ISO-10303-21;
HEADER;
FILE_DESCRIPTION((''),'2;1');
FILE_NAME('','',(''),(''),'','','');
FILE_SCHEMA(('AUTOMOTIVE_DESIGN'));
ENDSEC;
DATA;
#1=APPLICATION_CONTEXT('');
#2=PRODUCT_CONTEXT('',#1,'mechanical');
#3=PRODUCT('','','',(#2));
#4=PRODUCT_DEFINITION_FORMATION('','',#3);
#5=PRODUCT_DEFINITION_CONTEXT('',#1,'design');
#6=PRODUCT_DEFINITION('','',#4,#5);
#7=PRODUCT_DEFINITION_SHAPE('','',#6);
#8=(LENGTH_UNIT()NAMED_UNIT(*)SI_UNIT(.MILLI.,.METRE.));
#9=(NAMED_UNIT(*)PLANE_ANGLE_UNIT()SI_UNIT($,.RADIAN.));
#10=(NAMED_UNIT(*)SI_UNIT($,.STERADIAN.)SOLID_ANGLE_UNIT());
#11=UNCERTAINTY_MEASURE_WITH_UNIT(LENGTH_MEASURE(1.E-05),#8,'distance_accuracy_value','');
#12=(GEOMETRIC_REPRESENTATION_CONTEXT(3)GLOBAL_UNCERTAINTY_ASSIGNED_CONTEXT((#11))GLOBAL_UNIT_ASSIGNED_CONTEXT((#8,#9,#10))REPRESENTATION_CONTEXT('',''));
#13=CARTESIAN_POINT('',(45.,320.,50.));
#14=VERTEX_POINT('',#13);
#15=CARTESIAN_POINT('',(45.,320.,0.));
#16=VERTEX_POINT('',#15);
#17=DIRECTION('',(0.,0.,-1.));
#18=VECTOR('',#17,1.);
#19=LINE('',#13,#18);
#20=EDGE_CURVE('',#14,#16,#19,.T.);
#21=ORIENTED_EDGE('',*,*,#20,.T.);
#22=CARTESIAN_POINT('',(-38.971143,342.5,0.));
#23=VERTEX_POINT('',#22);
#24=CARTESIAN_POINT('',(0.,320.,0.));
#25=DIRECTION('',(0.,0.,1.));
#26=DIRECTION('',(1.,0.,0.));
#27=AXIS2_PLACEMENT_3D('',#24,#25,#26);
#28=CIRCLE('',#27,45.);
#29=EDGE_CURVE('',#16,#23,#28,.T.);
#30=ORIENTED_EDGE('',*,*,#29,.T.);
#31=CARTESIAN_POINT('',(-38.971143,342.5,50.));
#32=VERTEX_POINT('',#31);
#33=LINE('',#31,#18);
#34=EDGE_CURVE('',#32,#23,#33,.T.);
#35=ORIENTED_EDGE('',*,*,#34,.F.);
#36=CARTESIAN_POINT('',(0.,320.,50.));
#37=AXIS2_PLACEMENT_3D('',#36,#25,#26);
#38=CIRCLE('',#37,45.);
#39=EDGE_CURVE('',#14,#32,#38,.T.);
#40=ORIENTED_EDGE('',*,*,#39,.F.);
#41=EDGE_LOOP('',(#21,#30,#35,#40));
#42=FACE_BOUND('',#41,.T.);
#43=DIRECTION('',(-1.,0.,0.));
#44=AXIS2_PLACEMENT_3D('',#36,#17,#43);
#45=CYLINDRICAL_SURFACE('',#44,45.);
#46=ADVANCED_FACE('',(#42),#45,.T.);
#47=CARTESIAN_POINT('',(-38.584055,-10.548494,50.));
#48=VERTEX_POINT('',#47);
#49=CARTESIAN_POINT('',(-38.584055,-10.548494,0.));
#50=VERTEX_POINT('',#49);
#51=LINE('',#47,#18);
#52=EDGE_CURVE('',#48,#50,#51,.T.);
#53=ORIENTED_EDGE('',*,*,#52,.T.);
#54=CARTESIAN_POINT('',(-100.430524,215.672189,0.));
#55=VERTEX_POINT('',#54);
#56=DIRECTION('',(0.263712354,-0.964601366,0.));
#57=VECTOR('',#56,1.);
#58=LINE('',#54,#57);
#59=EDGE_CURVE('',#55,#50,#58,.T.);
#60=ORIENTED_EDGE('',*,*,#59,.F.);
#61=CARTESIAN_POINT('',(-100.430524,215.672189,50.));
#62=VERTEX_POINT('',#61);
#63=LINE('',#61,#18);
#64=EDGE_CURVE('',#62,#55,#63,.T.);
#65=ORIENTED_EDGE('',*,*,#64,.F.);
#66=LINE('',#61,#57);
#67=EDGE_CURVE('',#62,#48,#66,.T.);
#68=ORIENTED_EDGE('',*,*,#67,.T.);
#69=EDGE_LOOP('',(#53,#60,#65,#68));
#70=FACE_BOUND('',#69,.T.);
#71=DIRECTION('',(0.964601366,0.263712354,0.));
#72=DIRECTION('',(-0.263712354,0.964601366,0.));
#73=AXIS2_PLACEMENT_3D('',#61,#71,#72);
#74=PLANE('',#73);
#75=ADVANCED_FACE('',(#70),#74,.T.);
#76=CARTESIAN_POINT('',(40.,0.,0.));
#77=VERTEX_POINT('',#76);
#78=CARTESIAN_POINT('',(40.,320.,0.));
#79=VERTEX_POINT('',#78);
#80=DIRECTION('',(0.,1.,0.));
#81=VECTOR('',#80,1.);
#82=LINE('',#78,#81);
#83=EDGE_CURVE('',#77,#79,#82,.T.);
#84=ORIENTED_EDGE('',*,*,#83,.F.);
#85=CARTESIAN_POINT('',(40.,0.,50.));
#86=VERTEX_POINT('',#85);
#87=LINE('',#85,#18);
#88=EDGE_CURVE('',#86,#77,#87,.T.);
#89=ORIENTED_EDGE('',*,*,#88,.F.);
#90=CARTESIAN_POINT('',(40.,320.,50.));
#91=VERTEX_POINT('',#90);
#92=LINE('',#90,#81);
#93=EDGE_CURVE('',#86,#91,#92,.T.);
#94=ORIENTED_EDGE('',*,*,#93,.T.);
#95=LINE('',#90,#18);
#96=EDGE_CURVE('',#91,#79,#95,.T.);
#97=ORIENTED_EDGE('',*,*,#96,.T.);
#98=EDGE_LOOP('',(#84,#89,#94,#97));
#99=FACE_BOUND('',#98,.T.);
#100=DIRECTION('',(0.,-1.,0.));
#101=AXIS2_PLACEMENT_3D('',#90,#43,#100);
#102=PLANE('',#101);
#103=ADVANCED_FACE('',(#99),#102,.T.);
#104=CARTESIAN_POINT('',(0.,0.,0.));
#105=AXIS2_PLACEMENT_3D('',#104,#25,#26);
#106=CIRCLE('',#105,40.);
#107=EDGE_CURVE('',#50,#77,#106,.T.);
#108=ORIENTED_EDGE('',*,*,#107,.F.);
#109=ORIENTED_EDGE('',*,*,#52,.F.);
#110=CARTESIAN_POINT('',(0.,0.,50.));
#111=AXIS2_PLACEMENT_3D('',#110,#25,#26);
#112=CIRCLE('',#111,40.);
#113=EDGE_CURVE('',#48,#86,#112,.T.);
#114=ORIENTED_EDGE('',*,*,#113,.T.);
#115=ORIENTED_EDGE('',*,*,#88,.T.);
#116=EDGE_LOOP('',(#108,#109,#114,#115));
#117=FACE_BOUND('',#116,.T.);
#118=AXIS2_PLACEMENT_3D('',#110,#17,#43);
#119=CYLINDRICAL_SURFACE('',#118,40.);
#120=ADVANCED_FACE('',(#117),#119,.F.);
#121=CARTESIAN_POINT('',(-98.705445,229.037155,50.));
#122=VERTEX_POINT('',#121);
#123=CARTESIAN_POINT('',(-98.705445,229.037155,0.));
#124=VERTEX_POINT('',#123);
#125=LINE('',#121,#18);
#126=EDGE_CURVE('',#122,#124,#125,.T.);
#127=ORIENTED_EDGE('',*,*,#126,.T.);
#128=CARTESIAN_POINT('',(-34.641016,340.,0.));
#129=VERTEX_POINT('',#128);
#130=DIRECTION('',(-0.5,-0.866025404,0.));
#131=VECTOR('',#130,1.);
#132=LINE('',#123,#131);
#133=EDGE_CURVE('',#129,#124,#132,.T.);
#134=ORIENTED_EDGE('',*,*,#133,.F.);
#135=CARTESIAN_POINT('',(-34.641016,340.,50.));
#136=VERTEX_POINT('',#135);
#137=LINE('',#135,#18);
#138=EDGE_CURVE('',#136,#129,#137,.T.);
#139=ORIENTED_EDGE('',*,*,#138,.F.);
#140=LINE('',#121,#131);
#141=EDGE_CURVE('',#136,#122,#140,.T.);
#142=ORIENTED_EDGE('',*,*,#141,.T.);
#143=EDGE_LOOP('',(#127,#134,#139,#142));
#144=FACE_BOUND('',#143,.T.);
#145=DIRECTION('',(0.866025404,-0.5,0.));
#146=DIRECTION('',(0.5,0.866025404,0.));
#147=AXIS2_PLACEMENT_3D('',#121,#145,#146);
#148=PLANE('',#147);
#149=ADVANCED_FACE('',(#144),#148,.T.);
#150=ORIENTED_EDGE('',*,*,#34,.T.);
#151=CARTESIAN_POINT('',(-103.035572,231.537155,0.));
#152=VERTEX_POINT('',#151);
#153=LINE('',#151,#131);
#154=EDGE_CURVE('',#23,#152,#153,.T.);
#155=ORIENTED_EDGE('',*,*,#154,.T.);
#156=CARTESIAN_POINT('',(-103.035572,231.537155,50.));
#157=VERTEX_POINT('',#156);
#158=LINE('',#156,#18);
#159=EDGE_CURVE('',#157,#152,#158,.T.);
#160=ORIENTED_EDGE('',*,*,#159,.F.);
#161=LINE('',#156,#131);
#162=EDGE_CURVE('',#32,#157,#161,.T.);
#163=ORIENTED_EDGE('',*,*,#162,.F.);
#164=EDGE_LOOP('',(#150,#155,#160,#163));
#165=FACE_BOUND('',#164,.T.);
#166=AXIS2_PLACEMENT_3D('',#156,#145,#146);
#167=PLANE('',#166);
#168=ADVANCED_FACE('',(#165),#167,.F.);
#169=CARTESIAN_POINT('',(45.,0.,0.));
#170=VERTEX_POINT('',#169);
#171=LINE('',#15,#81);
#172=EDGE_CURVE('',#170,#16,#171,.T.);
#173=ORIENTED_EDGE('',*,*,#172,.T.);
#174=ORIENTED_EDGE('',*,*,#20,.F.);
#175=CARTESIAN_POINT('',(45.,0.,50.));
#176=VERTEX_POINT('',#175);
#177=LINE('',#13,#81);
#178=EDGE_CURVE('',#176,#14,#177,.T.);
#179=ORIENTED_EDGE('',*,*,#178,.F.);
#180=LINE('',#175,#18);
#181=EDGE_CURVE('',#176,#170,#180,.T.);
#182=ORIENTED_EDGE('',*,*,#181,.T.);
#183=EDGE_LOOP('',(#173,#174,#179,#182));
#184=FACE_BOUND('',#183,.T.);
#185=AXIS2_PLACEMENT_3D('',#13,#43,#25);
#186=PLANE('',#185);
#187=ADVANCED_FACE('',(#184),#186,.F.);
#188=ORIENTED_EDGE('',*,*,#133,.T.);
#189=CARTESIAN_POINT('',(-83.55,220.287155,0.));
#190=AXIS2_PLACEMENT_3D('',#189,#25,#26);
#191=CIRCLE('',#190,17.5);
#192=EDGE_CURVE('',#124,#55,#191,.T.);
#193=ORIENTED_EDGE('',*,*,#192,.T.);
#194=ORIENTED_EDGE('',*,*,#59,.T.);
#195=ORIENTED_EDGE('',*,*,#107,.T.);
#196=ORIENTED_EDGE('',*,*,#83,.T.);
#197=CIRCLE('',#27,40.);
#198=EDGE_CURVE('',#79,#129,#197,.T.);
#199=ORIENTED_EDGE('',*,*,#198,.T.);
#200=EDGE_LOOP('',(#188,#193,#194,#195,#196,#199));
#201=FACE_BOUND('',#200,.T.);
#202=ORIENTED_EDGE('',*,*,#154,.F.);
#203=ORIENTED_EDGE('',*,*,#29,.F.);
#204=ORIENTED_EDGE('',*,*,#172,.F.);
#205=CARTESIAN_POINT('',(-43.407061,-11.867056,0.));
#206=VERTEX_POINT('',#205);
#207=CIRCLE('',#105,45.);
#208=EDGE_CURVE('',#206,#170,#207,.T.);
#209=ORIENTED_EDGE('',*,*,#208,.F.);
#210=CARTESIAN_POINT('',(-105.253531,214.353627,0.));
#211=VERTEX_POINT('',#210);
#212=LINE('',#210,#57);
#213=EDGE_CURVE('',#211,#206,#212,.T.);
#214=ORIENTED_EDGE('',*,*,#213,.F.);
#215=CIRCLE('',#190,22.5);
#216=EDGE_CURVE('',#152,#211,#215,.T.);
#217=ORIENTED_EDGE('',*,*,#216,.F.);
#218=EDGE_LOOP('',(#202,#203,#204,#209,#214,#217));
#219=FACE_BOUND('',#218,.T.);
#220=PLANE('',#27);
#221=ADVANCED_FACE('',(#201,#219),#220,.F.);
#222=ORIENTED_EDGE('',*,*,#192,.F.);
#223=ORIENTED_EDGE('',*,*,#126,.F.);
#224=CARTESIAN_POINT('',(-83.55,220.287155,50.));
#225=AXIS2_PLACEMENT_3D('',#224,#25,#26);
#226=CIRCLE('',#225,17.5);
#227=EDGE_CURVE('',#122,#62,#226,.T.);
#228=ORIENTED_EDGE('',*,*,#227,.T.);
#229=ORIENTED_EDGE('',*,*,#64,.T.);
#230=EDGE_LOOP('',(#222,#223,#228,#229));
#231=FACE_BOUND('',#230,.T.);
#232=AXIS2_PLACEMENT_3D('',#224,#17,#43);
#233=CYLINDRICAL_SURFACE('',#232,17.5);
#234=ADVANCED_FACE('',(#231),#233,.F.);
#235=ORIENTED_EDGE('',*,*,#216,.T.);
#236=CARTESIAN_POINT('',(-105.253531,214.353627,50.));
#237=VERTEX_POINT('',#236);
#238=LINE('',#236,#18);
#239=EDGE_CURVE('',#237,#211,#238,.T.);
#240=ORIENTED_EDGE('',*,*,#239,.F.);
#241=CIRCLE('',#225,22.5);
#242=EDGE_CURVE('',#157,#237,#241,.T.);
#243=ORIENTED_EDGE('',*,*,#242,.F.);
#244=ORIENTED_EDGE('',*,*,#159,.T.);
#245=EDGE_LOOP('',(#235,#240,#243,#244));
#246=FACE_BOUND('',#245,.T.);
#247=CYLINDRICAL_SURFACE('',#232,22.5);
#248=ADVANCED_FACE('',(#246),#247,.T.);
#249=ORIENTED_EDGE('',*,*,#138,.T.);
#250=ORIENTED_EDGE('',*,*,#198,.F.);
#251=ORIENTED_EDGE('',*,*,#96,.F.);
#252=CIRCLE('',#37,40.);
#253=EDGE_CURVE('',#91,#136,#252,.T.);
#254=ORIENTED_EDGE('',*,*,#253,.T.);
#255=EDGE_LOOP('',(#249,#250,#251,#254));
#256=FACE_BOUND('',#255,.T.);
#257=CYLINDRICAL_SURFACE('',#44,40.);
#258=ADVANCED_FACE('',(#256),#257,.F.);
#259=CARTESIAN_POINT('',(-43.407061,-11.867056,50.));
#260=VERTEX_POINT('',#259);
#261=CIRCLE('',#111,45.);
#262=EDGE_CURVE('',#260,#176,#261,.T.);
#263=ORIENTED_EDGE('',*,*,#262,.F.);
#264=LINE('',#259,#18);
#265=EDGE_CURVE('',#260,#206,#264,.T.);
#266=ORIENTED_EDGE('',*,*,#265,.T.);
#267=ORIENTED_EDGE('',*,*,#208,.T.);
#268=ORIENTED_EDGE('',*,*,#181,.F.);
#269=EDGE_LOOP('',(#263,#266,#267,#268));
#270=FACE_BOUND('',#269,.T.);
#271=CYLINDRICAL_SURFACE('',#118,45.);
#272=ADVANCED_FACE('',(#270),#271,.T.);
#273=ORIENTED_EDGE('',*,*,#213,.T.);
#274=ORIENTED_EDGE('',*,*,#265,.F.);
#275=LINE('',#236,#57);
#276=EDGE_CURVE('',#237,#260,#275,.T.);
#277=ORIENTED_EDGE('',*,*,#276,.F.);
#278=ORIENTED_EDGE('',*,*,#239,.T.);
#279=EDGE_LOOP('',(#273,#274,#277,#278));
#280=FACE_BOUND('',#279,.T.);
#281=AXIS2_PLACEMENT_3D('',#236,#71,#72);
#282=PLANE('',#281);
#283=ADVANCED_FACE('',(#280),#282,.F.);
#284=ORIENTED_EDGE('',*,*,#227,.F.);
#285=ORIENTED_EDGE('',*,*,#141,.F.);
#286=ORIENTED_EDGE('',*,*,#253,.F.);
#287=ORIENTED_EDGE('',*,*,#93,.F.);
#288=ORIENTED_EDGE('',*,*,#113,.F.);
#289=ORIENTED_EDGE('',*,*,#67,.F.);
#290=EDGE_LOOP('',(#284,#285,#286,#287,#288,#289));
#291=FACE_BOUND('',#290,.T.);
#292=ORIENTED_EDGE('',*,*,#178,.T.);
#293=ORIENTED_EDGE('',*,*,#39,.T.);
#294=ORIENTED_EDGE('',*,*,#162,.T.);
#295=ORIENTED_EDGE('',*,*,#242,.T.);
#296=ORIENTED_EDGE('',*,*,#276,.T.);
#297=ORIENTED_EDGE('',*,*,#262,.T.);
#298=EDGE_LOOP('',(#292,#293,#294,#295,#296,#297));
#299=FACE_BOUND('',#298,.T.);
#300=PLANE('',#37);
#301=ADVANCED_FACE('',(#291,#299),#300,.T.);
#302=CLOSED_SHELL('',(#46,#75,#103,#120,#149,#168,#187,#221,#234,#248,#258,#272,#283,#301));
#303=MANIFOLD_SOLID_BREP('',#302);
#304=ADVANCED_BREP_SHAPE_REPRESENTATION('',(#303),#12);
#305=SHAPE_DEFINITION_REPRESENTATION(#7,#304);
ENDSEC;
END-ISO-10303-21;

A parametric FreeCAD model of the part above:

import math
import FreeCAD as App
import Part
import Sketcher

V = App.Vector
Q = App.Units.Quantity

doc = App.newDocument("Part")
body = doc.addObject("PartDesign::Body", "Body")

sketch1 = body.newObject("Sketcher::SketchObject", "Sketch")
sketch1.AttachmentSupport = (doc.getObject("XY_Plane"), [""])
sketch1.MapMode = "FlatFace"
sketch1.addGeometry(Part.LineSegment(V(-39, 342, 0), V(-103, 232, 0)), False)
sketch1.addGeometry(Part.ArcOfCircle(Part.Circle(V(-84, 220, 0), V(0, 0, 1), 23), math.radians(150), math.radians(195)), False)
sketch1.addGeometry(Part.LineSegment(V(-105, 214, 0), V(-43, -12, 0)), False)
sketch1.addGeometry(Part.ArcOfCircle(Part.Circle(V(0, 0, 0), V(0, 0, 1), 45), math.radians(-165), math.radians(0)), False)
sketch1.addGeometry(Part.LineSegment(V(45, 0, 0), V(45, 320, 0)), False)
sketch1.addGeometry(Part.ArcOfCircle(Part.Circle(V(0, 320, 0), V(0, 0, 1), 45), math.radians(0), math.radians(150)), False)
sketch1.addGeometry(Part.LineSegment(V(40, 320, 0), V(40, 0, 0)), False)
sketch1.addGeometry(Part.ArcOfCircle(Part.Circle(V(0, 0, 0), V(0, 0, 1), 40), math.radians(-165), math.radians(0)), False)
sketch1.addGeometry(Part.LineSegment(V(-39, -11, 0), V(-100, 216, 0)), False)
sketch1.addGeometry(Part.ArcOfCircle(Part.Circle(V(-84, 220, 0), V(0, 0, 1), 17), math.radians(150), math.radians(195)), False)
sketch1.addGeometry(Part.LineSegment(V(-99, 229, 0), V(-35, 340, 0)), False)
sketch1.addGeometry(Part.ArcOfCircle(Part.Circle(V(0, 320, 0), V(0, 0, 1), 40), math.radians(0), math.radians(150)), False)
sketch1.addConstraint(Sketcher.Constraint("Tangent", 0, 2, 1, 1))
sketch1.addConstraint(Sketcher.Constraint("Tangent", 1, 2, 2, 1))
sketch1.addConstraint(Sketcher.Constraint("Tangent", 2, 2, 3, 1))
sketch1.addConstraint(Sketcher.Constraint("Tangent", 3, 2, 4, 1))
sketch1.addConstraint(Sketcher.Constraint("Tangent", 4, 2, 5, 1))
sketch1.addConstraint(Sketcher.Constraint("Tangent", 5, 2, 0, 1))
sketch1.addConstraint(Sketcher.Constraint("Tangent", 6, 2, 7, 2))
sketch1.addConstraint(Sketcher.Constraint("Tangent", 7, 1, 8, 1))
sketch1.addConstraint(Sketcher.Constraint("Tangent", 8, 2, 9, 2))
sketch1.addConstraint(Sketcher.Constraint("Tangent", 9, 1, 10, 1))
sketch1.addConstraint(Sketcher.Constraint("Tangent", 10, 2, 11, 2))
sketch1.addConstraint(Sketcher.Constraint("Tangent", 11, 1, 6, 1))
sketch1.addConstraint(Sketcher.Constraint("Vertical", 4))
sketch1.addConstraint(Sketcher.Constraint("Vertical", 6))
sketch1.addConstraint(Sketcher.Constraint("Coincident", 3, 3, -1, 1))
sketch1.addConstraint(Sketcher.Constraint("Coincident", 7, 3, -1, 1))
sketch1.addConstraint(Sketcher.Constraint("Coincident", 9, 3, 1, 3))
sketch1.addConstraint(Sketcher.Constraint("Coincident", 11, 3, 5, 3))
sketch1.addConstraint(Sketcher.Constraint("Equal", 3, 5))
sketch1.addConstraint(Sketcher.Constraint("Parallel", 2, 8))
sketch1.addConstraint(Sketcher.Constraint("Radius", 3, Q("45 mm")))
sketch1.addConstraint(Sketcher.Constraint("Radius", 7, Q("40 mm")))
sketch1.addConstraint(Sketcher.Constraint("Radius", 1, Q("22.5 mm")))
sketch1.addConstraint(Sketcher.Constraint("DistanceY", 4, 1, 4, 2, Q("320 mm")))
sketch1.addConstraint(Sketcher.Constraint("Angle", 0, Q("-120 deg")))
sketch1.addConstraint(Sketcher.Constraint("DistanceX", 1, 3, -1, 1, Q("83.55 mm")))
pad1 = body.newObject("PartDesign::Pad", "Pad")
pad1.Profile = sketch1
pad1.Length = 50

doc.recompute()
